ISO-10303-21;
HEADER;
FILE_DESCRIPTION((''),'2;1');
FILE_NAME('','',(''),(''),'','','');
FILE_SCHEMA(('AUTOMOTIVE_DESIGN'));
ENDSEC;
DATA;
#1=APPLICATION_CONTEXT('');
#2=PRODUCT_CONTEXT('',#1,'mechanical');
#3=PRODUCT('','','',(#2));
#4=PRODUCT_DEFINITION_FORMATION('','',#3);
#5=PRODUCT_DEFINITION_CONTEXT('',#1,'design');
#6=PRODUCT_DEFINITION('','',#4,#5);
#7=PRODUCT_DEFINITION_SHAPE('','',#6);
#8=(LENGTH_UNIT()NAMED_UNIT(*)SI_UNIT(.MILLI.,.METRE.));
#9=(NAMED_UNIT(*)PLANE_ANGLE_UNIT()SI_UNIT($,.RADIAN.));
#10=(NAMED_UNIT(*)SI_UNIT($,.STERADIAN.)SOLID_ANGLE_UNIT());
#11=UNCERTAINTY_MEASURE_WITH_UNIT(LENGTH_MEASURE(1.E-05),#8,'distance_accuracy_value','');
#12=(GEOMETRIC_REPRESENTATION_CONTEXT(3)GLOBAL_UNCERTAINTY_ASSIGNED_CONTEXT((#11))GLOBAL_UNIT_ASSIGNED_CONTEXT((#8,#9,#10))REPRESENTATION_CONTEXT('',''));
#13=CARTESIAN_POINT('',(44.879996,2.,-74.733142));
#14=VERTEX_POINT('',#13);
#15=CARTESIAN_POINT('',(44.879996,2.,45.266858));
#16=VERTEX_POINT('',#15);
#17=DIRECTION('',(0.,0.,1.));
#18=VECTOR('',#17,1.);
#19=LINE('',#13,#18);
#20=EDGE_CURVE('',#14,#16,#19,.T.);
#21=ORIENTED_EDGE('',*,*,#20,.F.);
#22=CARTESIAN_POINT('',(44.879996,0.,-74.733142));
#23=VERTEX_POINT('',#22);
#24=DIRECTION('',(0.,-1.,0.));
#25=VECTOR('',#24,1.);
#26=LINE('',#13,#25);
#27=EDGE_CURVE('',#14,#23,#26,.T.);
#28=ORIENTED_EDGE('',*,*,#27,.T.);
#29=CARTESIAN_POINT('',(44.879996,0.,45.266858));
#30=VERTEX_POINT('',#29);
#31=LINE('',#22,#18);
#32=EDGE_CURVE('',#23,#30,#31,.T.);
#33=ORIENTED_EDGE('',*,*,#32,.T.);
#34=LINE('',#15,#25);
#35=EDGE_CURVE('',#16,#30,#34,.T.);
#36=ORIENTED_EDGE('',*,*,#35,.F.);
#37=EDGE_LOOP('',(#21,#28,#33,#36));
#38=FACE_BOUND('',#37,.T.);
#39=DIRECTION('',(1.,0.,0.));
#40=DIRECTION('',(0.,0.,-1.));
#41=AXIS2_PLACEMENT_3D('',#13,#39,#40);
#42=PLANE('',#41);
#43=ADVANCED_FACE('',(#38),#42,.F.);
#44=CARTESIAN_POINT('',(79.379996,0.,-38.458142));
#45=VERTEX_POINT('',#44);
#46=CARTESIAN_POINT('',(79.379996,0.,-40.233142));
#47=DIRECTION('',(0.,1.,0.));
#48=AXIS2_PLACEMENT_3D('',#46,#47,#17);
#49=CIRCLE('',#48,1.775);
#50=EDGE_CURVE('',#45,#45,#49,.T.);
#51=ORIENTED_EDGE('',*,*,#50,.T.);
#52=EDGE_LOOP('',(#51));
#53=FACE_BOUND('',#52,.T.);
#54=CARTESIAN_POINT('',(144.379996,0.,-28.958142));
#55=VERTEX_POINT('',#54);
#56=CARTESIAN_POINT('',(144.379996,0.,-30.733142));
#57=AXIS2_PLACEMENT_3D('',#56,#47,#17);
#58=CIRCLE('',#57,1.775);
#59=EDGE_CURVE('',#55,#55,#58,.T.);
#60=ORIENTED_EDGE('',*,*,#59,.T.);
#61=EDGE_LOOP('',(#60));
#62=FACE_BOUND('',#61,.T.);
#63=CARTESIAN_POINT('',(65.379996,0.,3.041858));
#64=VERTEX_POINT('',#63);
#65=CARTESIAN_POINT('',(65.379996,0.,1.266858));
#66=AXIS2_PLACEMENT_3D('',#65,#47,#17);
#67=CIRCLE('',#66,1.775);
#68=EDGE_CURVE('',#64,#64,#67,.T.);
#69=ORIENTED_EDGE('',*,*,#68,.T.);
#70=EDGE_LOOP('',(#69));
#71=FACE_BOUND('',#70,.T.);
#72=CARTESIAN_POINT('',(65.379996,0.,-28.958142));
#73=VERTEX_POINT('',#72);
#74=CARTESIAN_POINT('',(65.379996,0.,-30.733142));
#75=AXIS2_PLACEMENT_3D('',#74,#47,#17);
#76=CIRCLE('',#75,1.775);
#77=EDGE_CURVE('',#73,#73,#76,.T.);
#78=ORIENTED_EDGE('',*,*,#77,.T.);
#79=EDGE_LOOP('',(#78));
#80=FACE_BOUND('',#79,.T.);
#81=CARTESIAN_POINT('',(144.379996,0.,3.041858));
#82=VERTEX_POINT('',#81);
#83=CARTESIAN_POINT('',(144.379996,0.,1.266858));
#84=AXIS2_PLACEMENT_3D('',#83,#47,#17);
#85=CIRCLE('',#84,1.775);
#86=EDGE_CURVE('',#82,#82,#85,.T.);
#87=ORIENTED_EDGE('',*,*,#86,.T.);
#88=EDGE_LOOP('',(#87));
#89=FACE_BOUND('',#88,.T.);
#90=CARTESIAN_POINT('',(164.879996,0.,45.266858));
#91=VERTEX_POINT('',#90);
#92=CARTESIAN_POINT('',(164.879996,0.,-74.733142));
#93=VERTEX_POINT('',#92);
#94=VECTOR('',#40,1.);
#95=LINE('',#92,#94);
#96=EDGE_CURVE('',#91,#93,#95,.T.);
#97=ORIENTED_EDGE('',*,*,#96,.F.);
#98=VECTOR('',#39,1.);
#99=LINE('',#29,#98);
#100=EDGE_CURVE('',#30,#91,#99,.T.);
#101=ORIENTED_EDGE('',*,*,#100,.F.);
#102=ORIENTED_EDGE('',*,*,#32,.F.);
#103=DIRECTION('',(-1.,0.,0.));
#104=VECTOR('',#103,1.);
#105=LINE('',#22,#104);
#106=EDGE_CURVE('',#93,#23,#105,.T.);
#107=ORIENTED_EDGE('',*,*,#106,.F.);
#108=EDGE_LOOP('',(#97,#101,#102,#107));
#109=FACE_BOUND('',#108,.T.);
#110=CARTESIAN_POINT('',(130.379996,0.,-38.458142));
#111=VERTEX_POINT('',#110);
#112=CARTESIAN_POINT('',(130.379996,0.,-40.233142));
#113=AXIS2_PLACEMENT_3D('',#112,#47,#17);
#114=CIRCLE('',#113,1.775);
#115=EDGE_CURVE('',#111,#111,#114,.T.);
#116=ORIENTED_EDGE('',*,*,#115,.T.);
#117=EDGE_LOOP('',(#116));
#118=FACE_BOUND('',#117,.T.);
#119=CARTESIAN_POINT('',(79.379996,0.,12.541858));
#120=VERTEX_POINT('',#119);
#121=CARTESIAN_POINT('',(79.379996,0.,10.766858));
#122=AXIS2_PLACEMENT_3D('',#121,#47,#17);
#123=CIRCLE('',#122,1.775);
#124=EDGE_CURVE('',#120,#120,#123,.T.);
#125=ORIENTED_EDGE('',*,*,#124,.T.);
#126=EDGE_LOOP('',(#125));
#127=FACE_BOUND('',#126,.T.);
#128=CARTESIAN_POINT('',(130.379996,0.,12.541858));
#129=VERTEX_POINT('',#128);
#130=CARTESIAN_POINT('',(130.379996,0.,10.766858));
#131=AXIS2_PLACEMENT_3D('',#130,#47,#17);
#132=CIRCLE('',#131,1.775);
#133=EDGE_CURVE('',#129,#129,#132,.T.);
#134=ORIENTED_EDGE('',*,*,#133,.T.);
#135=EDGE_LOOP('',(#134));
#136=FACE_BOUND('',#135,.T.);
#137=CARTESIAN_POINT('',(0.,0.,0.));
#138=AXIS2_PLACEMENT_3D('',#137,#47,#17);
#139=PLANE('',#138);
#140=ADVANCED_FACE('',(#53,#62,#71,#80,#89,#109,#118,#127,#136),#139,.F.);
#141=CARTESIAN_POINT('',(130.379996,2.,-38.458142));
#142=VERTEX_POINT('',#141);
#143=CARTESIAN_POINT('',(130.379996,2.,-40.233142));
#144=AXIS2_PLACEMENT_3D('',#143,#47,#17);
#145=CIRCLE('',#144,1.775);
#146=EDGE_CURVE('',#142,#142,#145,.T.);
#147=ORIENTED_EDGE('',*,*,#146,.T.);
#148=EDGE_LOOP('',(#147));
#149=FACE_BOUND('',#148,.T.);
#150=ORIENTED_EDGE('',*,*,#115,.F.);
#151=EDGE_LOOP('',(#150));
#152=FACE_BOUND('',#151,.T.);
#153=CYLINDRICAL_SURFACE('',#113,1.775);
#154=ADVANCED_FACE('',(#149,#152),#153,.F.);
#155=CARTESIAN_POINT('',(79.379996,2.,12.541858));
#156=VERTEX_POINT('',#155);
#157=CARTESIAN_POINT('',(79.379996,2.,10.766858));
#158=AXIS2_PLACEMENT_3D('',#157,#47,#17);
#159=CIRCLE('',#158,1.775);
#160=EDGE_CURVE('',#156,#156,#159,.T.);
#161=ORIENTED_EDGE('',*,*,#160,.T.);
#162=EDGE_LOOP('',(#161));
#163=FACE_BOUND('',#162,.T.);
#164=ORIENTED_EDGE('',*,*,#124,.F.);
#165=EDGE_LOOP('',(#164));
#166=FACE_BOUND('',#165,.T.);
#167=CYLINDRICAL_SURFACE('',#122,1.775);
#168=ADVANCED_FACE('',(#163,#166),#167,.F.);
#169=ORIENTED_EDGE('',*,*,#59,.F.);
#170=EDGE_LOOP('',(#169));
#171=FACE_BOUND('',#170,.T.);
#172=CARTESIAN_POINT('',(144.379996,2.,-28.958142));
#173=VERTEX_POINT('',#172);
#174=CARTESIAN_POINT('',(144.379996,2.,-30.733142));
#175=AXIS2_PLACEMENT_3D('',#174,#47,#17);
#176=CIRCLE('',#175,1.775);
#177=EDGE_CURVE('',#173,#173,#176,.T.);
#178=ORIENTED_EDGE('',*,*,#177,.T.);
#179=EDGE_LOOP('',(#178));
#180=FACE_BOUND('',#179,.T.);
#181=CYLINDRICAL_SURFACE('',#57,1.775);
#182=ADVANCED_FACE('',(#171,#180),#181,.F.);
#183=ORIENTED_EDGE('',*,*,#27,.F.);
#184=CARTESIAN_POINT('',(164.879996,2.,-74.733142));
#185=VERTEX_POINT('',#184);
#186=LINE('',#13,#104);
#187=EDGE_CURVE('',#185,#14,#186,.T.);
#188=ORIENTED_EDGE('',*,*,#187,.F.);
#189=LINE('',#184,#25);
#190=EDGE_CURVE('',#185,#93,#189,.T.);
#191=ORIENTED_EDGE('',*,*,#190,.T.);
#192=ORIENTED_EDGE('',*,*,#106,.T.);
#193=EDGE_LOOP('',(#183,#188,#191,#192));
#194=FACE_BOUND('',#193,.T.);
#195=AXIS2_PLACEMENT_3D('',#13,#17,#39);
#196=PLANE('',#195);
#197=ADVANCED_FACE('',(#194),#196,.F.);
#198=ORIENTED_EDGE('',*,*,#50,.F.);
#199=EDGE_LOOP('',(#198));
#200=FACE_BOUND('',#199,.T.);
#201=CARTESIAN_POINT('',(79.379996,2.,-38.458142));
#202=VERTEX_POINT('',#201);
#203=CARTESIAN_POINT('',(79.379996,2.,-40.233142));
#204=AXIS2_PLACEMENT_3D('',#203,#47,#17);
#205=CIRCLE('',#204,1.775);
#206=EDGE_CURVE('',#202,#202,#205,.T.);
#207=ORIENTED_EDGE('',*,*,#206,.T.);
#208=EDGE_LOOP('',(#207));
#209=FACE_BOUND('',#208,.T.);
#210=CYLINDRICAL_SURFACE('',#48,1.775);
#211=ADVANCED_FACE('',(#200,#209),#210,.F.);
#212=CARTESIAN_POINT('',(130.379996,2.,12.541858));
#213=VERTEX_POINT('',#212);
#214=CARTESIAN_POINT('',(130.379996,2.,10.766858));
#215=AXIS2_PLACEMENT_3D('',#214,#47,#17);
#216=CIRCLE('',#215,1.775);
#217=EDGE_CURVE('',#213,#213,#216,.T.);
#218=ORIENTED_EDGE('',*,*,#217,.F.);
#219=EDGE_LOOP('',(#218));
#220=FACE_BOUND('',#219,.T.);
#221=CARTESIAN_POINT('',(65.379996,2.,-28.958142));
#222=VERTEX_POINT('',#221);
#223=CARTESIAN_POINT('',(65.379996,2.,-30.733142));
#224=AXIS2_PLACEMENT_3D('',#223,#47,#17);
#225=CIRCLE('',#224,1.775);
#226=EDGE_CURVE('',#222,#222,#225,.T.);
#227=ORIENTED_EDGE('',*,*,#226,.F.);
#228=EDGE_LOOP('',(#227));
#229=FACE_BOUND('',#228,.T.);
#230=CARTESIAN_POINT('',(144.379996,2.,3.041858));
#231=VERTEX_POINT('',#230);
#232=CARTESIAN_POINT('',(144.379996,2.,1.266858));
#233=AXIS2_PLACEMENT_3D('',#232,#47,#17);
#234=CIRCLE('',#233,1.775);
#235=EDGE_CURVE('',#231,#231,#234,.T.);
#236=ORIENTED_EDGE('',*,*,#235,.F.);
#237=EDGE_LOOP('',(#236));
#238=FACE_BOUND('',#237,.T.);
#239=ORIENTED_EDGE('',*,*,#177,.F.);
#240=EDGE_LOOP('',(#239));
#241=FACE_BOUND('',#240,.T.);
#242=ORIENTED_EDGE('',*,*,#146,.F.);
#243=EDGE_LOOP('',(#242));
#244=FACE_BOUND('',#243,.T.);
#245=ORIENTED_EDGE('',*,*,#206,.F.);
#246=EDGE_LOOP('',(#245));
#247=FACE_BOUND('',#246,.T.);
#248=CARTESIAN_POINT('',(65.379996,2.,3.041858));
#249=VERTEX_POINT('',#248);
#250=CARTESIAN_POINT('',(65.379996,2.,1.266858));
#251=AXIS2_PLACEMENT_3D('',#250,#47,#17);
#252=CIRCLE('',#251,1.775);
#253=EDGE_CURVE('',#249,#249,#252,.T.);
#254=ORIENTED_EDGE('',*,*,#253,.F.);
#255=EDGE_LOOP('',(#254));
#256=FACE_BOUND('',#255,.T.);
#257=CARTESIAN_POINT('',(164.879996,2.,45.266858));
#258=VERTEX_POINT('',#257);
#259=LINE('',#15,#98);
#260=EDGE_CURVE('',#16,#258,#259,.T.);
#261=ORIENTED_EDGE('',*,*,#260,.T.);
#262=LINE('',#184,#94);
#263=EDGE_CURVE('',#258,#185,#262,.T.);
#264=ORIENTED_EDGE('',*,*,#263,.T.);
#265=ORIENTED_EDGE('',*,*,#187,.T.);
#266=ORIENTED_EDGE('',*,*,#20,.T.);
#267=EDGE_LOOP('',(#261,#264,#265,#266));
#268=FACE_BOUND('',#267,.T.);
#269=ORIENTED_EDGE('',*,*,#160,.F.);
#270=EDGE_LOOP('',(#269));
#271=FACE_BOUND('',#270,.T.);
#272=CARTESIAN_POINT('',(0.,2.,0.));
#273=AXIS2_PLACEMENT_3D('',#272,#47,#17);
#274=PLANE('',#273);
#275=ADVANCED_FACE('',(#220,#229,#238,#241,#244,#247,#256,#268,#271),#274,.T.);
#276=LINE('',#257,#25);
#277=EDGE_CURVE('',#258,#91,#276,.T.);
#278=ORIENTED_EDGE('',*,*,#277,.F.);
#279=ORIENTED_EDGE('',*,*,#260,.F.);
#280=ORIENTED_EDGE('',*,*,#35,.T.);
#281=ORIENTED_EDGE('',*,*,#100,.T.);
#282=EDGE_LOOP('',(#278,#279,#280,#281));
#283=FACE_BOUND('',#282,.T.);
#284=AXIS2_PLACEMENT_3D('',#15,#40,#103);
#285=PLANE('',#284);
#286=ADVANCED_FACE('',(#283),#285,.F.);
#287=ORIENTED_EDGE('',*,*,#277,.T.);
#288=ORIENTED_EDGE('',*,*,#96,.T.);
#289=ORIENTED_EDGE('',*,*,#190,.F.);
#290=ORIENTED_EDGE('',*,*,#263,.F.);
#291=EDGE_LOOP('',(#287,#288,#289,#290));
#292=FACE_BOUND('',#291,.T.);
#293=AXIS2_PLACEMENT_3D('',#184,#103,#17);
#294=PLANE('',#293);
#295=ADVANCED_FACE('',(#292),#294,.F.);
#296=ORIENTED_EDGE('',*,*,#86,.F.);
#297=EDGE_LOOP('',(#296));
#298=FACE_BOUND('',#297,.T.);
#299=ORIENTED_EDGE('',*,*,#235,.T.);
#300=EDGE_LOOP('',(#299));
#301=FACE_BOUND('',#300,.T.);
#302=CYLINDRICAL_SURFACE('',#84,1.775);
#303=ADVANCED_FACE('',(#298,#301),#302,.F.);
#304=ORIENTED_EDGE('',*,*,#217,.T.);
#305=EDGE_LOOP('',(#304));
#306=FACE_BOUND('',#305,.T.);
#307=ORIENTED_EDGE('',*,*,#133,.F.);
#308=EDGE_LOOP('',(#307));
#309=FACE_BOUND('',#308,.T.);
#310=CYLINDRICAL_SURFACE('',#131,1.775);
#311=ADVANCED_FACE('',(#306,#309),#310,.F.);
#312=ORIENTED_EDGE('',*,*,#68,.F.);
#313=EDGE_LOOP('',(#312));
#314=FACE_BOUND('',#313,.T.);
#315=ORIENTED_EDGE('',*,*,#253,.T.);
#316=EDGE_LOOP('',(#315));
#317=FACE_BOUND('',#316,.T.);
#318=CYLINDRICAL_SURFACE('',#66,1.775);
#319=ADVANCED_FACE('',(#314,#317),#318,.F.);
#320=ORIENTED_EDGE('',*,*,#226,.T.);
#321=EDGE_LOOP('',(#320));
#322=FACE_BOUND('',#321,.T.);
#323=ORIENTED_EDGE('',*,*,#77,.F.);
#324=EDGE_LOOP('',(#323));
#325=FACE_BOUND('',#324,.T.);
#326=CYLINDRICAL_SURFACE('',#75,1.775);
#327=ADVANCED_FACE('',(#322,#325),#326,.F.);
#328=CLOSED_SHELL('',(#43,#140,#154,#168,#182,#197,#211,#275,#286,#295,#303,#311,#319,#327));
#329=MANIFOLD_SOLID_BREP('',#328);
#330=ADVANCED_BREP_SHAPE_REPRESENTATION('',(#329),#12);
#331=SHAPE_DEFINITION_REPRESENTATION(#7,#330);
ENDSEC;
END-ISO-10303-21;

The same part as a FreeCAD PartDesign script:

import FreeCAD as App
import Part
import Sketcher

V = App.Vector
Q = App.Units.Quantity


def add_polygon(sketch, points):
    """Adds a closed chain of lines whose ends are joined by coincident constraints."""
    first, n = sketch.GeometryCount, len(points)
    for a, b in zip(points, points[1:] + points[:1]):
        sketch.addGeometry(Part.LineSegment(App.Vector(*a, 0), App.Vector(*b, 0)), False)
    for i in range(n):
        sketch.addConstraint(Sketcher.Constraint("Coincident", first + i, 2, first + (i + 1) % n, 1))

doc = App.newDocument("Part")
params = doc.addObject("Spreadsheet::Sheet", "Params")
for row, (alias, value) in enumerate([
    ("sketch1_width", "120 mm"),
    ("pad1_length", "2 mm"),
    ("sketch2_diameter", "3.55 mm"),
    ("sketch3_diameter", "3.55 mm"),
], start=1):
    params.set(f"A{row}", alias)
    params.set(f"B{row}", "=" + value)
    params.setAlias(f"B{row}", alias)

body = doc.addObject("PartDesign::Body", "Body")

# Sketch on XZ plane
sketch1 = body.newObject("Sketcher::SketchObject", "Sketch")
sketch1.AttachmentSupport = (doc.getObject("XZ_Plane"), [""])
sketch1.MapMode = "FlatFace"
add_polygon(sketch1, [(45, -75), (45, 45), (165, 45), (165, -75)])  # lines 0-3
sketch1.addConstraint([
    Sketcher.Constraint("Vertical", 0),
    Sketcher.Constraint("Horizontal", 1),
    Sketcher.Constraint("Vertical", 2),
    Sketcher.Constraint("Horizontal", 3),
    Sketcher.Constraint("Equal", 3, 0),
    Sketcher.Constraint("DistanceX", 1, 1, 1, 2, Q("120 mm")),
    Sketcher.Constraint("DistanceX", -1, 1, 0, 2, Q("44.879996 mm")),
    Sketcher.Constraint("DistanceY", -1, 1, 0, 2, Q("45.266858 mm")),
])
sketch1.setExpression("Constraints[9]", "Params.sketch1_width")
pad1 = body.newObject("PartDesign::Pad", "Pad")
pad1.Profile = sketch1
pad1.setExpression("Length", "Params.pad1_length")
pad1.Reversed = True

# Sketch on XZ plane
sketch2 = body.newObject("Sketcher::SketchObject", "Sketch001")
sketch2.AttachmentSupport = (doc.getObject("XZ_Plane"), [""])
sketch2.MapMode = "FlatFace"
sketch2.AttachmentOffset = App.Placement(V(0, 0, -2), App.Rotation())
sketch2.addGeometry([
    Part.Circle(V(65.4, -30.7, 0), V(0, 0, 1), 1.8),
    Part.Circle(V(65.4, 1.3, 0), V(0, 0, 1), 1.8),
    Part.Circle(V(144.4, 1.3, 0), V(0, 0, 1), 1.8),
    Part.Circle(V(144.4, -30.7, 0), V(0, 0, 1), 1.8),
], False)
sketch2.addConstraint([
    Sketcher.Constraint("Equal", 0, 1),
    Sketcher.Constraint("Equal", 1, 2),
    Sketcher.Constraint("Equal", 2, 3),
    Sketcher.Constraint("Horizontal", 1, 3, 2, 3),
    Sketcher.Constraint("Horizontal", 0, 3, 3, 3),
    Sketcher.Constraint("Vertical", 0, 3, 1, 3),
    Sketcher.Constraint("Vertical", 2, 3, 3, 3),
    Sketcher.Constraint("Diameter", 0, Q("3.55 mm")),
    Sketcher.Constraint("DistanceY", 0, 3, 1, 3, Q("32 mm")),
    Sketcher.Constraint("DistanceX", 1, 3, 2, 3, Q("79 mm")),
    Sketcher.Constraint("DistanceX", -1, 1, 0, 3, Q("65.379996 mm")),
    Sketcher.Constraint("DistanceY", 0, 3, -1, 1, Q("30.733142 mm")),
])
sketch2.setExpression("Constraints[7]", "Params.sketch2_diameter")
pocket1 = body.newObject("PartDesign::Pocket", "Pocket")
pocket1.Profile = sketch2
pocket1.Type = "ThroughAll"
pocket1.Reversed = True

# Sketch on XZ plane
sketch3 = body.newObject("Sketcher::SketchObject", "Sketch002")
sketch3.AttachmentSupport = (doc.getObject("XZ_Plane"), [""])
sketch3.MapMode = "FlatFace"
sketch3.AttachmentOffset = App.Placement(V(0, 0, -2), App.Rotation())
sketch3.addGeometry([
    Part.Circle(V(79.4, 10.8, 0), V(0, 0, 1), 1.8),
    Part.Circle(V(79.4, -40.2, 0), V(0, 0, 1), 1.8),
    Part.Circle(V(130.4, 10.8, 0), V(0, 0, 1), 1.8),
    Part.Circle(V(130.4, -40.2, 0), V(0, 0, 1), 1.8),
], False)
sketch3.addConstraint([
    Sketcher.Constraint("Equal", 0, 1),
    Sketcher.Constraint("Equal", 1, 2),
    Sketcher.Constraint("Equal", 2, 3),
    Sketcher.Constraint("Horizontal", 0, 3, 2, 3),
    Sketcher.Constraint("Horizontal", 1, 3, 3, 3),
    Sketcher.Constraint("Vertical", 0, 3, 1, 3),
    Sketcher.Constraint("Vertical", 2, 3, 3, 3),
    Sketcher.Constraint("Diameter", 0, Q("3.55 mm")),
    Sketcher.Constraint("DistanceY", 1, 3, 0, 3, Q("51 mm")),
    Sketcher.Constraint("DistanceX", 0, 3, 2, 3, Q("51 mm")),
    Sketcher.Constraint("DistanceX", -1, 1, 0, 3, Q("79.379996 mm")),
    Sketcher.Constraint("DistanceY", -1, 1, 0, 3, Q("10.766858 mm")),
])
sketch3.setExpression("Constraints[7]", "Params.sketch3_diameter")
pocket2 = body.newObject("PartDesign::Pocket", "Pocket001")
pocket2.Profile = sketch3
pocket2.Type = "ThroughAll"
pocket2.Reversed = True

doc.recompute()
